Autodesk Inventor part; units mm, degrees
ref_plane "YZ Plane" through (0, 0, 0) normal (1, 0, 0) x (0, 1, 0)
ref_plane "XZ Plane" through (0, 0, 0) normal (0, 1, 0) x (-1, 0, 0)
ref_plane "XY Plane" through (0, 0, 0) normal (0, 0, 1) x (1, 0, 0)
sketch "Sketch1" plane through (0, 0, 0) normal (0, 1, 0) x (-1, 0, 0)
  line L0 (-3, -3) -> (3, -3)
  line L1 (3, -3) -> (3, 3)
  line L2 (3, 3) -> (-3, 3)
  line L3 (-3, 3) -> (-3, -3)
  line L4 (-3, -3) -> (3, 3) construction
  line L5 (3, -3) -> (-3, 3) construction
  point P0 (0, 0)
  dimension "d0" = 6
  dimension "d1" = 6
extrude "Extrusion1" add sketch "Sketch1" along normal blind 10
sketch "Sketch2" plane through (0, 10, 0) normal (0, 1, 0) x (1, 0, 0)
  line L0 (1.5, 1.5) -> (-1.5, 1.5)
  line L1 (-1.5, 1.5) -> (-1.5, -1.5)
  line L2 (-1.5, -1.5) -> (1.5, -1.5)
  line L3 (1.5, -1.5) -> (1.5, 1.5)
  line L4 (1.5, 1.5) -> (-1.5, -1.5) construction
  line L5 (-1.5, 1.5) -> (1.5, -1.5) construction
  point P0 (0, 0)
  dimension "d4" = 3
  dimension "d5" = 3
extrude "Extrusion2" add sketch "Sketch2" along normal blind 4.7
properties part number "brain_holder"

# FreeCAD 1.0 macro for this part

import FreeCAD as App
import Part
import Sketcher
Q = App.Units.Quantity


def add_polygon(sketch, points):
    """Adds a closed chain of lines whose ends are joined by coincident constraints."""
    first, n = sketch.GeometryCount, len(points)
    for a, b in zip(points, points[1:] + points[:1]):
        sketch.addGeometry(Part.LineSegment(App.Vector(*a, 0), App.Vector(*b, 0)), False)
    for i in range(n):
        sketch.addConstraint(Sketcher.Constraint("Coincident", first + i, 2, first + (i + 1) % n, 1))

doc = App.newDocument("Part")
body = doc.addObject("PartDesign::Body", "Body")

# Sketch on XZ plane
sketch1 = body.newObject("Sketcher::SketchObject", "Sketch")
sketch1.AttachmentSupport = (doc.getObject("XZ_Plane"), [""])
sketch1.MapMode = "FlatFace"
add_polygon(sketch1, [(3, 3), (3, -3), (-3, -3), (-3, 3)])  # lines 0-3
sketch1.addConstraint([
    Sketcher.Constraint("Vertical", 0),
    Sketcher.Constraint("Horizontal", 1),
    Sketcher.Constraint("Vertical", 2),
    Sketcher.Constraint("Horizontal", 3),
    Sketcher.Constraint("Symmetric", 0, 2, 2, 2, -1, 1),
    Sketcher.Constraint("Equal", 3, 0),
    Sketcher.Constraint("DistanceX", 1, 2, 1, 1, Q("6 mm")),
])
pad1 = body.newObject("PartDesign::Pad", "Pad")
pad1.Profile = sketch1
pad1.Length = 10
pad1.Reversed = True

# Sketch on XZ plane
sketch2 = body.newObject("Sketcher::SketchObject", "Sketch001")
sketch2.AttachmentSupport = (doc.getObject("XZ_Plane"), [""])
sketch2.MapMode = "FlatFace"
sketch2.AttachmentOffset = App.Placement(App.Vector(0, 0, -10), App.Rotation())
add_polygon(sketch2, [(1.5, 1.5), (1.5, -1.5), (-1.5, -1.5), (-1.5, 1.5)])  # lines 0-3
sketch2.addConstraint([
    Sketcher.Constraint("Vertical", 0),
    Sketcher.Constraint("Horizontal", 1),
    Sketcher.Constraint("Vertical", 2),
    Sketcher.Constraint("Horizontal", 3),
    Sketcher.Constraint("Symmetric", 0, 2, 2, 2, -1, 1),
    Sketcher.Constraint("Equal", 3, 0),
    Sketcher.Constraint("DistanceX", 1, 2, 1, 1, Q("3 mm")),
])
pad2 = body.newObject("PartDesign::Pad", "Pad001")
pad2.Profile = sketch2
pad2.Length = 4.7
pad2.Reversed = True

doc.recompute()
